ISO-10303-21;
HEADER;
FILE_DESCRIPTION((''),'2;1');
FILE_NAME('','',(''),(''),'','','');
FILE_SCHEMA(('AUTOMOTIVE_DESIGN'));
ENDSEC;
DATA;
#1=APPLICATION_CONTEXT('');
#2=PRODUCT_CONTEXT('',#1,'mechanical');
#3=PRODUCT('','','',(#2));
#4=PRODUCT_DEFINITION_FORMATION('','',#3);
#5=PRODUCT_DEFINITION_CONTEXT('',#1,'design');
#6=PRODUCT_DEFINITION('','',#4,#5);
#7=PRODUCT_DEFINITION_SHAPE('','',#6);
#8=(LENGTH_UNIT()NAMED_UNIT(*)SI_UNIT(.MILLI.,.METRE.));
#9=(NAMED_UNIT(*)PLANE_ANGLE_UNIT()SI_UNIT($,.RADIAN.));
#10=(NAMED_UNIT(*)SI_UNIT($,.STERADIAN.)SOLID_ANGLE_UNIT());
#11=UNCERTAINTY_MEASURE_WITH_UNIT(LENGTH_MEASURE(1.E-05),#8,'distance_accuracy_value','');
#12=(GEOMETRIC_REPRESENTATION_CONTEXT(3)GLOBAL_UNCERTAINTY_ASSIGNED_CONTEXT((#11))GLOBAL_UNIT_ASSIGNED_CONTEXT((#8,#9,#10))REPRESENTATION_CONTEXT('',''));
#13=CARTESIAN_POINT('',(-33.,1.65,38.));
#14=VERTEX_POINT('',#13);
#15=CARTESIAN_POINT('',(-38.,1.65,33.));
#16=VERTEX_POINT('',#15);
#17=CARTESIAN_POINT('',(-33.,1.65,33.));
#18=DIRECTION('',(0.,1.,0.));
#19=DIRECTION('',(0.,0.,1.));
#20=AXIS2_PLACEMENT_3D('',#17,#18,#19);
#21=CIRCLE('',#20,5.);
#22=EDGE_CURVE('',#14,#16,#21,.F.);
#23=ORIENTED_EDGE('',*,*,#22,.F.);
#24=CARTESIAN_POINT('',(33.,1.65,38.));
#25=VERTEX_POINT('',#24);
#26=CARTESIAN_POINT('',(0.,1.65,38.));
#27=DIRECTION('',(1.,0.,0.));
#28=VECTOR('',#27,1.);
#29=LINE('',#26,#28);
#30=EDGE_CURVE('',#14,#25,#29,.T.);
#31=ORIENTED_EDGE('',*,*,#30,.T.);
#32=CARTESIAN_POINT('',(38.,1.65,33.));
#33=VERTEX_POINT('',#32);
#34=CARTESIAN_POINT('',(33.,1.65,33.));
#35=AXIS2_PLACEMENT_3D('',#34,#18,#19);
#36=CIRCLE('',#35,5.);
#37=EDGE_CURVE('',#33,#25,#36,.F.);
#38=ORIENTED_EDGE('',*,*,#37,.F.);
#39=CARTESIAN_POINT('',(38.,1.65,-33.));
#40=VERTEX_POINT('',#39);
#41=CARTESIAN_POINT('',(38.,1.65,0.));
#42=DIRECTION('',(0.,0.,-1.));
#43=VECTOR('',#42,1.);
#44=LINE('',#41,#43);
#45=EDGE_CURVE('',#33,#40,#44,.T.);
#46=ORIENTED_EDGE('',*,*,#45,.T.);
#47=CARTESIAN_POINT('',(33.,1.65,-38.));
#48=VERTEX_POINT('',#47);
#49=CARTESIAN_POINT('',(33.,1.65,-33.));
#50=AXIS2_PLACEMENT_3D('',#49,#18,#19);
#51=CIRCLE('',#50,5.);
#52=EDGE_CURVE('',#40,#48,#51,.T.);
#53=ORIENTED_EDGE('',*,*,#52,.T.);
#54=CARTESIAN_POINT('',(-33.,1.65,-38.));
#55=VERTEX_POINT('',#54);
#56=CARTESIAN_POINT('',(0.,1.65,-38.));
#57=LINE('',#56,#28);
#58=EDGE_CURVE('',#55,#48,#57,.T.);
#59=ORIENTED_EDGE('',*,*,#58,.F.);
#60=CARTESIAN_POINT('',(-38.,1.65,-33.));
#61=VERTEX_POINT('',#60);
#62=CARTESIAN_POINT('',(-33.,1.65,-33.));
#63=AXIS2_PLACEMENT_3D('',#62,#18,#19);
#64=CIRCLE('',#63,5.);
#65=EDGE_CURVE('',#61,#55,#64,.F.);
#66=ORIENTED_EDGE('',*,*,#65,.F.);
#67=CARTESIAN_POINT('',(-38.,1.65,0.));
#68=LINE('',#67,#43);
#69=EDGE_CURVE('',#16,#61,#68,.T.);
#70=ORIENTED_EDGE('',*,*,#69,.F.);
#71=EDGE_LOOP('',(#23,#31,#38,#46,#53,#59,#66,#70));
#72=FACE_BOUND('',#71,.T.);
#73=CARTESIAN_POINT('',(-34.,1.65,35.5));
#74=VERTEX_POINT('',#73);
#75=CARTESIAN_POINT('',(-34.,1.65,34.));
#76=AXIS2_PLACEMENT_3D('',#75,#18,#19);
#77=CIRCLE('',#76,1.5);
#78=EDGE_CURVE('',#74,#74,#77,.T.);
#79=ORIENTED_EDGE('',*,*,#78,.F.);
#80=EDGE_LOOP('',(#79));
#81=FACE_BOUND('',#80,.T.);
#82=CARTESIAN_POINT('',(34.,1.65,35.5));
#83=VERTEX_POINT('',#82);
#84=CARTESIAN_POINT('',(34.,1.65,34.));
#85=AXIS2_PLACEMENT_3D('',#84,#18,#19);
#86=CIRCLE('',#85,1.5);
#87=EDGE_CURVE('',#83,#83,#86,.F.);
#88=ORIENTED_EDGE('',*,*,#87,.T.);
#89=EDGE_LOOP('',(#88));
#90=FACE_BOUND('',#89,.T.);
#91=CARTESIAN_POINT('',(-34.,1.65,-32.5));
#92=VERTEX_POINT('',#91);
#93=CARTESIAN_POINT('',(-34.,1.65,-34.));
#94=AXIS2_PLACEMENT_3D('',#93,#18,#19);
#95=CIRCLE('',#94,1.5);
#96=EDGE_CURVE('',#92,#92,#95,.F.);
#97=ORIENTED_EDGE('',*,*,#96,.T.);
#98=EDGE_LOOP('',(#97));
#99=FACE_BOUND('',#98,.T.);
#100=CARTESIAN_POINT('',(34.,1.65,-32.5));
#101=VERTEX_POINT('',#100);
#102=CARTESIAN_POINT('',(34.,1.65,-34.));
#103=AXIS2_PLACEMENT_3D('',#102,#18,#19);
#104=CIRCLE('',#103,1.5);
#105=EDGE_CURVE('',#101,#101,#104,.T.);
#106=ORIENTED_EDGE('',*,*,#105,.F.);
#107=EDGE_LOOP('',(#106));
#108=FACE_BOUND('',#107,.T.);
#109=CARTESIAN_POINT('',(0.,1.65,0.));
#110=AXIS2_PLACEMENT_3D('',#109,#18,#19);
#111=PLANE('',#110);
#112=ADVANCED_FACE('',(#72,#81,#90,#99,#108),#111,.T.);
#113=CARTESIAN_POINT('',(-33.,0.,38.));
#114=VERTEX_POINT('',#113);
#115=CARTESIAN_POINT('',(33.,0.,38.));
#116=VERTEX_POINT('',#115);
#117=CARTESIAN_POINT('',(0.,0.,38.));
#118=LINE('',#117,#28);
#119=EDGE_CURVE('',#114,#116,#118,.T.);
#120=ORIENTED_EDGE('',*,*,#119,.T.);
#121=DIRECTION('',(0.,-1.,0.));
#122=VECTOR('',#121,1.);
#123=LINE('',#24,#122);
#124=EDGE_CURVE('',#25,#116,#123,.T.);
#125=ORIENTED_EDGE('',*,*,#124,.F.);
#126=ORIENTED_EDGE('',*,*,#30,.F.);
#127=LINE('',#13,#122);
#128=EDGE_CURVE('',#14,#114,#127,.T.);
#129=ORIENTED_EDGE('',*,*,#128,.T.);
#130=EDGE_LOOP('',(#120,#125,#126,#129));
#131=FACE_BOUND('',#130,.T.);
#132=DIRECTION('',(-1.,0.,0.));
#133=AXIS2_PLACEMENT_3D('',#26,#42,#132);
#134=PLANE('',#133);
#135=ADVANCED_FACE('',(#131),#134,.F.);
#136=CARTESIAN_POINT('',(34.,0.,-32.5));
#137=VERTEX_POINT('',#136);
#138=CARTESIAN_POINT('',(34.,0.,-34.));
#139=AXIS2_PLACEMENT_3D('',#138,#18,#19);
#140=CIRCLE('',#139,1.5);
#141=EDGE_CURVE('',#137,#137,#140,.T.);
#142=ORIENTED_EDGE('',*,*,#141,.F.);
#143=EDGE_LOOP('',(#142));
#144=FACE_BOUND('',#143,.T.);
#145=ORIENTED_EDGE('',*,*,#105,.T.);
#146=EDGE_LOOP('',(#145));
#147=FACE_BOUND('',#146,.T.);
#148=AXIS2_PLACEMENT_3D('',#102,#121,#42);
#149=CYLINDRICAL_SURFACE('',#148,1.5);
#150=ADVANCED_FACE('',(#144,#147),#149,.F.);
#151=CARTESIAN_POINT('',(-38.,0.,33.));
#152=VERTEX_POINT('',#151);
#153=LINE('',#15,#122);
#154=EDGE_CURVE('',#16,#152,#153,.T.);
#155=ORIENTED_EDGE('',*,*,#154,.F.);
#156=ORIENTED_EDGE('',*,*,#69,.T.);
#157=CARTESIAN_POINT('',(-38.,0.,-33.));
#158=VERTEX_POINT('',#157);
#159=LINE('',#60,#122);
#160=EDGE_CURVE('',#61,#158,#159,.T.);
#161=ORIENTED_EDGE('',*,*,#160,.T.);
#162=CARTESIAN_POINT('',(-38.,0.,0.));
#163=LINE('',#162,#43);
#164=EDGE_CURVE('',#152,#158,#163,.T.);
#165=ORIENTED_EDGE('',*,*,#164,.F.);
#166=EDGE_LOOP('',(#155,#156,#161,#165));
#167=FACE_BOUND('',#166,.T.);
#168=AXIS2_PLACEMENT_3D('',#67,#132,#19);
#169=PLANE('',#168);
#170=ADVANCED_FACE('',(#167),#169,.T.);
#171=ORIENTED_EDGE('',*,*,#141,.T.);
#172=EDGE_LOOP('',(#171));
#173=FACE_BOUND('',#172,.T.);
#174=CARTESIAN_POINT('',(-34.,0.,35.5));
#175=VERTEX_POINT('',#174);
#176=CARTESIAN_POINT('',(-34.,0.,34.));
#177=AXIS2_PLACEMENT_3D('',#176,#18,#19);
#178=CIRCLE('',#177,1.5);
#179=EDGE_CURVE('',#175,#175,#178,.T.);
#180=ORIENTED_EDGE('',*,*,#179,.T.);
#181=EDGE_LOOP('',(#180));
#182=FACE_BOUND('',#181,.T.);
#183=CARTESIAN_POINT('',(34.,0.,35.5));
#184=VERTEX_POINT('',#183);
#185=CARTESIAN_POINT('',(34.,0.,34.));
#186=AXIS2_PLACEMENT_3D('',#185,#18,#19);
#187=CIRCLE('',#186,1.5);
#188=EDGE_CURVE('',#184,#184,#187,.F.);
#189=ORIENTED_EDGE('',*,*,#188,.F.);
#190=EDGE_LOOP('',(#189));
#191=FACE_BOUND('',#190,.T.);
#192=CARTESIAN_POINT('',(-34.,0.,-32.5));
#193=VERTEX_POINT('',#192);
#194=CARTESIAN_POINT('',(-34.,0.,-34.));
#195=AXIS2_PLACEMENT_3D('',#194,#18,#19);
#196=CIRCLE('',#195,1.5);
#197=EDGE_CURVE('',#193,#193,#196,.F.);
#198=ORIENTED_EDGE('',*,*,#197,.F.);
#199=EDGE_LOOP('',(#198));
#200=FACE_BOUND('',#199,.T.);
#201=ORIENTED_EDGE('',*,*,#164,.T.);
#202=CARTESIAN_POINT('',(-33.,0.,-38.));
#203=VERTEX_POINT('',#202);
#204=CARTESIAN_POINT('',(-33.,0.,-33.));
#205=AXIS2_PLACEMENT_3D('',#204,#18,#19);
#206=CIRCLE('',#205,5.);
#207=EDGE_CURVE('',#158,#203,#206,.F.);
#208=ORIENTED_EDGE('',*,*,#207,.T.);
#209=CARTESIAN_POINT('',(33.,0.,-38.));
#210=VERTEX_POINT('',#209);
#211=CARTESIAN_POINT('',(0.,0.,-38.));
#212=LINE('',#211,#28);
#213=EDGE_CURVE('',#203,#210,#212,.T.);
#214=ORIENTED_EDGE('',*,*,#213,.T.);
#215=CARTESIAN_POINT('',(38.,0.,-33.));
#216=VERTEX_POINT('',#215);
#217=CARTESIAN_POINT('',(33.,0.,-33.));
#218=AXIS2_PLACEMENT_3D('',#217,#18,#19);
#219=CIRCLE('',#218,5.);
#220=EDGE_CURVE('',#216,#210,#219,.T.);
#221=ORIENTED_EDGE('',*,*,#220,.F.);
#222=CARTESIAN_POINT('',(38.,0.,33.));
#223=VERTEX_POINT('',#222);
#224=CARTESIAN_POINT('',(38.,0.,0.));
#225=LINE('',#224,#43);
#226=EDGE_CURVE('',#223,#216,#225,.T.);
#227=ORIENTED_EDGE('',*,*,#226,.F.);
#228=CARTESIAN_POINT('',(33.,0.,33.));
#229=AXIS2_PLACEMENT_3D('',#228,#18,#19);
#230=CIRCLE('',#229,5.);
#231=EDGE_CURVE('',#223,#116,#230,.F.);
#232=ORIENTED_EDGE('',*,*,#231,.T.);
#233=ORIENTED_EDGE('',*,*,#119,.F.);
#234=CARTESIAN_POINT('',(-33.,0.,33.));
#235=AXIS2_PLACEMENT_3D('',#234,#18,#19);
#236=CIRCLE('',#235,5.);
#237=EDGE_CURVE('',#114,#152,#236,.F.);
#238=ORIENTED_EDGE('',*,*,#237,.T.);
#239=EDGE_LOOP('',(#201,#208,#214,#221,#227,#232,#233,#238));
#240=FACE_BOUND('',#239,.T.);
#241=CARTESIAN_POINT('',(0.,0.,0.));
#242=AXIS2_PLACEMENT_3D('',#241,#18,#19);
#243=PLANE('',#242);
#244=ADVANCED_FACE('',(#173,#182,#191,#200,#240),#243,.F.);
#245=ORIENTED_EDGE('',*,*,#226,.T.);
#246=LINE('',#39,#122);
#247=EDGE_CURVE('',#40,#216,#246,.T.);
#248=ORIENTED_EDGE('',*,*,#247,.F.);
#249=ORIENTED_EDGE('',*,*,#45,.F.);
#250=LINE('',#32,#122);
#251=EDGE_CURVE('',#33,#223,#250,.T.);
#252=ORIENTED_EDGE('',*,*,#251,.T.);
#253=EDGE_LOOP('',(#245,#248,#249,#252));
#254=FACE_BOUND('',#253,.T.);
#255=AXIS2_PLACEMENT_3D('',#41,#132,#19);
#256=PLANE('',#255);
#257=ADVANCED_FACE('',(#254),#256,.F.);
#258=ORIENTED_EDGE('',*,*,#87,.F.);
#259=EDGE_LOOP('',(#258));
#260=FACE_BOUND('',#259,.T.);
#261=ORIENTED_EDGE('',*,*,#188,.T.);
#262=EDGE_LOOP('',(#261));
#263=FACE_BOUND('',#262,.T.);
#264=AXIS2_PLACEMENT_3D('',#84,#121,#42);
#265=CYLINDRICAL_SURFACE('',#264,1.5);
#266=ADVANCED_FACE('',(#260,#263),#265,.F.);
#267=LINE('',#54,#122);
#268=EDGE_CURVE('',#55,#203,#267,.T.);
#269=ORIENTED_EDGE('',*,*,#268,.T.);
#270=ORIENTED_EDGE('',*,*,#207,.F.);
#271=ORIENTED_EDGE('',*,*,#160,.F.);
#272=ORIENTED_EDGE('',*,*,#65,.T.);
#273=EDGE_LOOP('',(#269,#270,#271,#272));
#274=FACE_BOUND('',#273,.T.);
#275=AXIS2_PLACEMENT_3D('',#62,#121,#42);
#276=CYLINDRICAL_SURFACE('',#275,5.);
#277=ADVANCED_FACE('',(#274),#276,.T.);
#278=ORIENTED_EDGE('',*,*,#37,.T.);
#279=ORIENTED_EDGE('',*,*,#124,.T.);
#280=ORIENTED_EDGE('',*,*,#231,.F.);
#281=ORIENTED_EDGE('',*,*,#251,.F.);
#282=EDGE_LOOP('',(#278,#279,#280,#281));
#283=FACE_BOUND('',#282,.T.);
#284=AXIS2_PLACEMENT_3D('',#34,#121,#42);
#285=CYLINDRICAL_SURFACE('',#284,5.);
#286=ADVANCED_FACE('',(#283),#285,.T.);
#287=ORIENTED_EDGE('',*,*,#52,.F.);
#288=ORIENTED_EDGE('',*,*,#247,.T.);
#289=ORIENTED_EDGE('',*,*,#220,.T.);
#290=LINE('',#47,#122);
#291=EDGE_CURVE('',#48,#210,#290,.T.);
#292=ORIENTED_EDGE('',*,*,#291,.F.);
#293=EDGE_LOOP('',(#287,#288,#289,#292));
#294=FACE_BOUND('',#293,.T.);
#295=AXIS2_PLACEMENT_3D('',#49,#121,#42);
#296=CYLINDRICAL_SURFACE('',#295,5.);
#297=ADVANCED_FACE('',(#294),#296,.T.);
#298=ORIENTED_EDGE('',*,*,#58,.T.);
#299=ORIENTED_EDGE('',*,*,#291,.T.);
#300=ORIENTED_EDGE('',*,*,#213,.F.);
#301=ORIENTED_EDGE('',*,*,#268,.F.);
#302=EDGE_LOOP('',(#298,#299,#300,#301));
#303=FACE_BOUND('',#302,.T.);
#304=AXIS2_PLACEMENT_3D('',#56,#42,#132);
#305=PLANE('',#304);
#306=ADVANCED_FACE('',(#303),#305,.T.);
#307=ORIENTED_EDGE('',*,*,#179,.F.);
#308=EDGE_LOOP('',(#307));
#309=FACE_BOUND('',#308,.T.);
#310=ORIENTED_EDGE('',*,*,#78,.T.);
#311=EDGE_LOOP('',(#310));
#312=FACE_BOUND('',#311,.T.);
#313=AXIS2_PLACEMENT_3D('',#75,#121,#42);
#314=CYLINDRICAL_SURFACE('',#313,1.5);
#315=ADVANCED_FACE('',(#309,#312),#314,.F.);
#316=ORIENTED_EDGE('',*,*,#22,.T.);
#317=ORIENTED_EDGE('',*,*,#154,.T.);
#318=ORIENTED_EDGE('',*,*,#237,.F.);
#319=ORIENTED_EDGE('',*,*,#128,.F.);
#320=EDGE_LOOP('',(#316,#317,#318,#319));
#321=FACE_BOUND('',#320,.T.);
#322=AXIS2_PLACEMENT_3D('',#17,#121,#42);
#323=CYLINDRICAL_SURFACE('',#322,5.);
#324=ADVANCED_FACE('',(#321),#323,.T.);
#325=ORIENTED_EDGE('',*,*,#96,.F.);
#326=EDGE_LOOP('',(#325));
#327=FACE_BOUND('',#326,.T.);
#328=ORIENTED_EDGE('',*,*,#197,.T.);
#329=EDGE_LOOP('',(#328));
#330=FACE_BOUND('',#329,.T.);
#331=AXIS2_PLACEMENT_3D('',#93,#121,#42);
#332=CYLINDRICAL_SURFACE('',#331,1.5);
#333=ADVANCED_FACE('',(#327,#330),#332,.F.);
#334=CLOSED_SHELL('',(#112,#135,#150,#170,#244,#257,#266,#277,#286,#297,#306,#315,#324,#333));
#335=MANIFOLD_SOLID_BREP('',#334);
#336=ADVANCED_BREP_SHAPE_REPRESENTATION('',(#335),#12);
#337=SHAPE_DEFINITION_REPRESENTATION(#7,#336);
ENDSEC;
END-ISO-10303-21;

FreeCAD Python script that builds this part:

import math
import FreeCAD as App
import Part
import Sketcher

V = App.Vector
Q = App.Units.Quantity

doc = App.newDocument("Part")
params = doc.addObject("Spreadsheet::Sheet", "Params")
for row, (alias, value) in enumerate([
    ("sketch1_diameter", "3 mm"),
    ("sketch1_radius", "5 mm"),
    ("sketch1_width", "66 mm"),
    ("pad1_length", "1.65 mm"),
], start=1):
    params.set(f"A{row}", alias)
    params.set(f"B{row}", "=" + value)
    params.setAlias(f"B{row}", alias)

body = doc.addObject("PartDesign::Body", "Body")

sketch1 = body.newObject("Sketcher::SketchObject", "Sketch")
sketch1.AttachmentSupport = (doc.getObject("XZ_Plane"), [""])
sketch1.MapMode = "FlatFace"
sketch1.addGeometry([
    Part.LineSegment(V(-33, 38, 0), V(33, 38, 0)),
    Part.ArcOfCircle(Part.Circle(V(33, 33, 0), V(0, 0, 1), 5), math.radians(0), math.radians(90)),
    Part.LineSegment(V(38, 33, 0), V(38, -33, 0)),
    Part.ArcOfCircle(Part.Circle(V(33, -33, 0), V(0, 0, 1), 5), math.radians(-90), math.radians(0)),
    Part.LineSegment(V(33, -38, 0), V(-33, -38, 0)),
    Part.ArcOfCircle(Part.Circle(V(-33, -33, 0), V(0, 0, 1), 5), math.radians(180), math.radians(270)),
    Part.LineSegment(V(-38, -33, 0), V(-38, 33, 0)),
    Part.ArcOfCircle(Part.Circle(V(-33, 33, 0), V(0, 0, 1), 5), math.radians(90), math.radians(180)),
    Part.Circle(V(-34, 34, 0), V(0, 0, 1), 1.5),
    Part.Circle(V(34, 34, 0), V(0, 0, 1), 1.5),
    Part.Circle(V(-34, -34, 0), V(0, 0, 1), 1.5),
    Part.Circle(V(34, -34, 0), V(0, 0, 1), 1.5),
], False)
sketch1.addConstraint([
    Sketcher.Constraint("Tangent", 0, 2, 1, 2),
    Sketcher.Constraint("Tangent", 1, 1, 2, 1),
    Sketcher.Constraint("Tangent", 2, 2, 3, 2),
    Sketcher.Constraint("Tangent", 3, 1, 4, 1),
    Sketcher.Constraint("Tangent", 4, 2, 5, 2),
    Sketcher.Constraint("Tangent", 5, 1, 6, 1),
    Sketcher.Constraint("Tangent", 6, 2, 7, 2),
    Sketcher.Constraint("Tangent", 7, 1, 0, 1),
    Sketcher.Constraint("Horizontal", 0),
    Sketcher.Constraint("Vertical", 2),
    Sketcher.Constraint("Horizontal", 4),
    Sketcher.Constraint("Vertical", 6),
    Sketcher.Constraint("Equal", 1, 3),
    Sketcher.Constraint("Equal", 3, 5),
    Sketcher.Constraint("Equal", 5, 7),
    Sketcher.Constraint("Equal", 8, 9),
    Sketcher.Constraint("Equal", 9, 10),
    Sketcher.Constraint("Equal", 10, 11),
    Sketcher.Constraint("Symmetric", 1, 3, 5, 3, -1, 1),
    Sketcher.Constraint("Symmetric", 9, 3, 10, 3, -1, 1),
    Sketcher.Constraint("Symmetric", 8, 3, 11, 3, -1, 1),
    Sketcher.Constraint("Symmetric", 8, 3, 9, 3, -2),
    Sketcher.Constraint("Equal", 4, 2),
    Sketcher.Constraint("Diameter", 8, Q("3 mm")),
    Sketcher.Constraint("Radius", 1, Q("5 mm")),
    Sketcher.Constraint("DistanceX", 0, 1, 0, 2, Q("66 mm")),
    Sketcher.Constraint("DistanceX", 8, 3, -1, 1, Q("34 mm")),
    Sketcher.Constraint("DistanceY", -1, 1, 8, 3, Q("34 mm")),
])
sketch1.setExpression("Constraints[23]", "Params.sketch1_diameter")
sketch1.setExpression("Constraints[24]", "Params.sketch1_radius")
sketch1.setExpression("Constraints[25]", "Params.sketch1_width")
pad1 = body.newObject("PartDesign::Pad", "Pad")
pad1.Profile = sketch1
pad1.setExpression("Length", "Params.pad1_length")
pad1.Reversed = True

doc.recompute()
